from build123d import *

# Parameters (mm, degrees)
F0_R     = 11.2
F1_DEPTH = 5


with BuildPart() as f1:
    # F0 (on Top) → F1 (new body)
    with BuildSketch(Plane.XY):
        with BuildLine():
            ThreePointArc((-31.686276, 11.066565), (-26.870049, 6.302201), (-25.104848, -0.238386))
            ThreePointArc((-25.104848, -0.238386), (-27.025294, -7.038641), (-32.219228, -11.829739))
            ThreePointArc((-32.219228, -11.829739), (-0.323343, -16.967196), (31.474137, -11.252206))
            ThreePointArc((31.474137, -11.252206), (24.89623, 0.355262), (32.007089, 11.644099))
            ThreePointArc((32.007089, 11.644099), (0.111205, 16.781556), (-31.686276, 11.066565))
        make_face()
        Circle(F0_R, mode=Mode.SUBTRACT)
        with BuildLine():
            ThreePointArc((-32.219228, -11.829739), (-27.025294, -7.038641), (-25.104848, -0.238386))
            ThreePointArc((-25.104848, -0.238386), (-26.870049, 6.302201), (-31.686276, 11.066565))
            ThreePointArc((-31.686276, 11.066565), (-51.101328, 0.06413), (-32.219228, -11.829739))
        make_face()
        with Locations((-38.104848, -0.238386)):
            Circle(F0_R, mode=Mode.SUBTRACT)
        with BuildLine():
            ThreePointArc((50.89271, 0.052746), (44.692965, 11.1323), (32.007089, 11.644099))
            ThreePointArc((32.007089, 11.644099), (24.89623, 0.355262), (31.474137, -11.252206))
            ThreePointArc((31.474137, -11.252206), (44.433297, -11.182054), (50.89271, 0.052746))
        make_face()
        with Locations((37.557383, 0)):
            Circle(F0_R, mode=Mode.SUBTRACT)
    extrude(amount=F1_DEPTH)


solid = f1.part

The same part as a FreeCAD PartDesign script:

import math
import FreeCAD as App
import Part
import Sketcher

doc = App.newDocument("Part")
body = doc.addObject("PartDesign::Body", "Body")

sketch1 = doc.addObject("Sketcher::SketchObject", "Sketch")
body.addObject(sketch1)
sketch1.AttachmentSupport = (doc.XY_Plane, [""])
sketch1.MapMode = "FlatFace"
sketch1.addGeometry([
    Part.ArcOfCircle(Part.Circle(App.Vector(1, -79, 0), App.Vector(0, 0, 1), 96), math.radians(71), math.radians(110)),
    Part.ArcOfCircle(Part.Circle(App.Vector(-38, 0, 0), App.Vector(0, 0, 1), 13), math.radians(60), math.radians(297)),
    Part.ArcOfCircle(Part.Circle(App.Vector(-1, 79, 0), App.Vector(0, 0, 1), 96), math.radians(-109), math.radians(-70)),
    Part.ArcOfCircle(Part.Circle(App.Vector(38, 0, 0), App.Vector(0, 0, 1), 13), math.radians(-120), math.radians(0)),
    Part.ArcOfCircle(Part.Circle(App.Vector(38, 0, 0), App.Vector(0, 0, 1), 13), math.radians(0), math.radians(117)),
    Part.Circle(App.Vector(-38, 0, 0), App.Vector(0, 0, 1), 11),
    Part.Circle(App.Vector(0, 0, 0), App.Vector(0, 0, 1), 11),
    Part.Circle(App.Vector(38, 0, 0), App.Vector(0, 0, 1), 11),
], False)
sketch1.addConstraint([
    Sketcher.Constraint("Coincident", 0, 2, 1, 1),
    Sketcher.Constraint("Coincident", 1, 2, 2, 1),
    Sketcher.Constraint("Coincident", 2, 2, 3, 1),
    Sketcher.Constraint("Tangent", 3, 2, 4, 1),
    Sketcher.Constraint("Coincident", 4, 2, 0, 1),
    Sketcher.Constraint("Coincident", 6, 3, -1, 1),
    Sketcher.Constraint("Coincident", 5, 3, 1, 3),
    Sketcher.Constraint("Equal", 1, 3),
    Sketcher.Constraint("Equal", 3, 4),
    Sketcher.Constraint("Equal", 5, 6),
    Sketcher.Constraint("Equal", 6, 7),
    Sketcher.Constraint("PointOnObject", 7, 3, -1),
    Sketcher.Constraint("Horizontal", 4, 3, 3, 2),
    Sketcher.Constraint("Radius", 1, 13.0),
    Sketcher.Constraint("Diameter", 5, 22.4),
    Sketcher.Constraint("Radius", 0, 96.171665),
    Sketcher.Constraint("Radius", 2, 96.171673),
    Sketcher.Constraint("DistanceY", -1, 1, 4, 2, 11.644099),
    Sketcher.Constraint("DistanceY", 0, 3, 3, 3, 79.438902),
    Sketcher.Constraint("DistanceX", 1, 3, -1, 1, 38.104849),
    Sketcher.Constraint("DistanceX", -1, 1, 3, 3, 37.89271),
    Sketcher.Constraint("DistanceY", 1, 2, -1, 1, 11.829739),
    Sketcher.Constraint("DistanceX", -1, 1, 4, 2, 32.007089),
    Sketcher.Constraint("DistanceY", 0, 3, 1, 3, 79.14777),
    Sketcher.Constraint("DistanceY", 1, 3, 2, 3, 79.43891),
    Sketcher.Constraint("DistanceX", 5, 3, 7, 3, 75.662231),
])
pad1 = doc.addObject("PartDesign::Pad", "Pad")
body.addObject(pad1)
pad1.Profile = sketch1
pad1.Length = 5

doc.recompute()
